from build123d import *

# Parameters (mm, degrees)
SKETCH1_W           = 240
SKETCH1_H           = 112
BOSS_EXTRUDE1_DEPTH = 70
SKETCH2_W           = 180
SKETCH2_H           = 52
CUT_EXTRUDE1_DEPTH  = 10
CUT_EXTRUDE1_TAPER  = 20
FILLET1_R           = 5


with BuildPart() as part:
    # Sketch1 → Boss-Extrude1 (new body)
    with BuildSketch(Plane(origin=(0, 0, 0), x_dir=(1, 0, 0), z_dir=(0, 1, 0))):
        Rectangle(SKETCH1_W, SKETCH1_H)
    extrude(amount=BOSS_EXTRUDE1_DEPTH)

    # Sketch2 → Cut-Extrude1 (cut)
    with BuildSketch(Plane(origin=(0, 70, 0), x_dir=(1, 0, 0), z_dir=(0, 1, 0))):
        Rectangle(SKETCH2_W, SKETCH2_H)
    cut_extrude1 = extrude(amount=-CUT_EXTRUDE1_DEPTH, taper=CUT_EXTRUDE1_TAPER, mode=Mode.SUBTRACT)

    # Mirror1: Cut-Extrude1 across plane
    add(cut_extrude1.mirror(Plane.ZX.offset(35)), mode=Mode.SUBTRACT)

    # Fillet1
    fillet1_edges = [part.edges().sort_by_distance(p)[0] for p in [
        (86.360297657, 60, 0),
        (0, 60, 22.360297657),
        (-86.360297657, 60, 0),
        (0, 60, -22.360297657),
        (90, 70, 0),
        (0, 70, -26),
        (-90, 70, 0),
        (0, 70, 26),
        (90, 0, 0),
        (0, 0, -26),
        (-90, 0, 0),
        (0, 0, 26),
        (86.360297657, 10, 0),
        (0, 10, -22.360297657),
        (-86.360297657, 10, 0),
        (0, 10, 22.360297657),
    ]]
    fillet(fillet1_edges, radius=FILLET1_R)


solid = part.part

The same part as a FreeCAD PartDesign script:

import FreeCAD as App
import Part
import Sketcher
from FreeCAD import Vector
Q = App.Units.Quantity


def edges_at(feature, points):
    """Names of the edges that pass closest to the given points."""
    edges = feature.Shape.Edges
    near = lambda p: min(range(len(edges)), key=lambda i: edges[i].distToShape(Part.Vertex(*p))[0])
    return sorted({f"Edge{near(p) + 1}" for p in points})

doc = App.newDocument("Part")
body = doc.addObject("PartDesign::Body", "Body")

# Sketch on XZ plane
sketch1 = doc.addObject("Sketcher::SketchObject", "Sketch")
body.addObject(sketch1)
sketch1.AttachmentSupport = (doc.XZ_Plane, [""])
sketch1.MapMode = "FlatFace"
sketch1.addGeometry(Part.LineSegment(Vector(-120, -56, 0), Vector(-120, 56, 0)), False)
sketch1.addGeometry(Part.LineSegment(Vector(-120, 56, 0), Vector(120, 56, 0)), False)
sketch1.addGeometry(Part.LineSegment(Vector(120, 56, 0), Vector(120, -56, 0)), False)
sketch1.addGeometry(Part.LineSegment(Vector(120, -56, 0), Vector(-120, -56, 0)), False)
sketch1.addConstraint(Sketcher.Constraint("Coincident", 0, 2, 1, 1))
sketch1.addConstraint(Sketcher.Constraint("Coincident", 1, 2, 2, 1))
sketch1.addConstraint(Sketcher.Constraint("Coincident", 2, 2, 3, 1))
sketch1.addConstraint(Sketcher.Constraint("Coincident", 3, 2, 0, 1))
sketch1.addConstraint(Sketcher.Constraint("Vertical", 0))
sketch1.addConstraint(Sketcher.Constraint("Horizontal", 1))
sketch1.addConstraint(Sketcher.Constraint("Vertical", 2))
sketch1.addConstraint(Sketcher.Constraint("Horizontal", 3))
sketch1.addConstraint(Sketcher.Constraint("Symmetric", 0, 2, 2, 2, -1, 1))
sketch1.addConstraint(Sketcher.Constraint("DistanceX", 1, 1, 1, 2, Q("240 mm")))
sketch1.addConstraint(Sketcher.Constraint("DistanceY", 0, 1, 0, 2, Q("112 mm")))
pad1 = doc.addObject("PartDesign::Pad", "Pad")
body.addObject(pad1)
pad1.Profile = sketch1
pad1.Length = 70
pad1.Reversed = True

# Sketch on XZ plane
sketch2 = doc.addObject("Sketcher::SketchObject", "Sketch001")
body.addObject(sketch2)
sketch2.AttachmentSupport = (doc.XZ_Plane, [""])
sketch2.MapMode = "FlatFace"
sketch2.AttachmentOffset = App.Placement(Vector(0, 0, -70), App.Rotation())
sketch2.addGeometry(Part.LineSegment(Vector(-90, -26, 0), Vector(-90, 26, 0)), False)
sketch2.addGeometry(Part.LineSegment(Vector(-90, 26, 0), Vector(90, 26, 0)), False)
sketch2.addGeometry(Part.LineSegment(Vector(90, 26, 0), Vector(90, -26, 0)), False)
sketch2.addGeometry(Part.LineSegment(Vector(90, -26, 0), Vector(-90, -26, 0)), False)
sketch2.addConstraint(Sketcher.Constraint("Coincident", 0, 2, 1, 1))
sketch2.addConstraint(Sketcher.Constraint("Coincident", 1, 2, 2, 1))
sketch2.addConstraint(Sketcher.Constraint("Coincident", 2, 2, 3, 1))
sketch2.addConstraint(Sketcher.Constraint("Coincident", 3, 2, 0, 1))
sketch2.addConstraint(Sketcher.Constraint("Vertical", 0))
sketch2.addConstraint(Sketcher.Constraint("Horizontal", 1))
sketch2.addConstraint(Sketcher.Constraint("Vertical", 2))
sketch2.addConstraint(Sketcher.Constraint("Horizontal", 3))
sketch2.addConstraint(Sketcher.Constraint("Symmetric", 0, 2, 2, 2, -1, 1))
sketch2.addConstraint(Sketcher.Constraint("DistanceX", 1, 1, 1, 2, Q("180 mm")))
sketch2.addConstraint(Sketcher.Constraint("DistanceY", 0, 1, 0, 2, Q("52 mm")))
pocket1 = doc.addObject("PartDesign::Pocket", "Pocket")
body.addObject(pocket1)
pocket1.Profile = sketch2
pocket1.Length = 10
pocket1.Reversed = True
pocket1.TaperAngle = -20
doc.recompute()

datumplane = doc.addObject("PartDesign::Plane", "DatumPlane")
body.addObject(datumplane)
datumplane.AttachmentSupport = (doc.XZ_Plane, [""])
datumplane.MapMode = "FlatFace"
datumplane.AttachmentOffset = App.Placement(Vector(0, 0, -35), App.Rotation())
mirrored = doc.addObject("PartDesign::Mirrored", "Mirrored")
body.addObject(mirrored)
mirrored.Originals = [pocket1]
mirrored.MirrorPlane = (datumplane, [""])
body.Tip = mirrored
doc.recompute()

fillet = doc.addObject("PartDesign::Fillet", "Fillet")
body.addObject(fillet)
fillet.Base = (mirrored, edges_at(mirrored, [
    (86.36, 60, 0),
    (0, 60, 22.36),
    (-86.36, 60, 0),
    (0, 60, -22.36),
    (90, 70, 0),
    (0, 70, -26),
    (-90, 70, 0),
    (0, 70, 26),
    (90, 0, 0),
    (0, 0, -26),
    (-90, 0, 0),
    (0, 0, 26),
    (86.36, 10, 0),
    (0, 10, -22.36),
    (-86.36, 10, 0),
    (0, 10, 22.36),
]))
fillet.Radius = 5

doc.recompute()
